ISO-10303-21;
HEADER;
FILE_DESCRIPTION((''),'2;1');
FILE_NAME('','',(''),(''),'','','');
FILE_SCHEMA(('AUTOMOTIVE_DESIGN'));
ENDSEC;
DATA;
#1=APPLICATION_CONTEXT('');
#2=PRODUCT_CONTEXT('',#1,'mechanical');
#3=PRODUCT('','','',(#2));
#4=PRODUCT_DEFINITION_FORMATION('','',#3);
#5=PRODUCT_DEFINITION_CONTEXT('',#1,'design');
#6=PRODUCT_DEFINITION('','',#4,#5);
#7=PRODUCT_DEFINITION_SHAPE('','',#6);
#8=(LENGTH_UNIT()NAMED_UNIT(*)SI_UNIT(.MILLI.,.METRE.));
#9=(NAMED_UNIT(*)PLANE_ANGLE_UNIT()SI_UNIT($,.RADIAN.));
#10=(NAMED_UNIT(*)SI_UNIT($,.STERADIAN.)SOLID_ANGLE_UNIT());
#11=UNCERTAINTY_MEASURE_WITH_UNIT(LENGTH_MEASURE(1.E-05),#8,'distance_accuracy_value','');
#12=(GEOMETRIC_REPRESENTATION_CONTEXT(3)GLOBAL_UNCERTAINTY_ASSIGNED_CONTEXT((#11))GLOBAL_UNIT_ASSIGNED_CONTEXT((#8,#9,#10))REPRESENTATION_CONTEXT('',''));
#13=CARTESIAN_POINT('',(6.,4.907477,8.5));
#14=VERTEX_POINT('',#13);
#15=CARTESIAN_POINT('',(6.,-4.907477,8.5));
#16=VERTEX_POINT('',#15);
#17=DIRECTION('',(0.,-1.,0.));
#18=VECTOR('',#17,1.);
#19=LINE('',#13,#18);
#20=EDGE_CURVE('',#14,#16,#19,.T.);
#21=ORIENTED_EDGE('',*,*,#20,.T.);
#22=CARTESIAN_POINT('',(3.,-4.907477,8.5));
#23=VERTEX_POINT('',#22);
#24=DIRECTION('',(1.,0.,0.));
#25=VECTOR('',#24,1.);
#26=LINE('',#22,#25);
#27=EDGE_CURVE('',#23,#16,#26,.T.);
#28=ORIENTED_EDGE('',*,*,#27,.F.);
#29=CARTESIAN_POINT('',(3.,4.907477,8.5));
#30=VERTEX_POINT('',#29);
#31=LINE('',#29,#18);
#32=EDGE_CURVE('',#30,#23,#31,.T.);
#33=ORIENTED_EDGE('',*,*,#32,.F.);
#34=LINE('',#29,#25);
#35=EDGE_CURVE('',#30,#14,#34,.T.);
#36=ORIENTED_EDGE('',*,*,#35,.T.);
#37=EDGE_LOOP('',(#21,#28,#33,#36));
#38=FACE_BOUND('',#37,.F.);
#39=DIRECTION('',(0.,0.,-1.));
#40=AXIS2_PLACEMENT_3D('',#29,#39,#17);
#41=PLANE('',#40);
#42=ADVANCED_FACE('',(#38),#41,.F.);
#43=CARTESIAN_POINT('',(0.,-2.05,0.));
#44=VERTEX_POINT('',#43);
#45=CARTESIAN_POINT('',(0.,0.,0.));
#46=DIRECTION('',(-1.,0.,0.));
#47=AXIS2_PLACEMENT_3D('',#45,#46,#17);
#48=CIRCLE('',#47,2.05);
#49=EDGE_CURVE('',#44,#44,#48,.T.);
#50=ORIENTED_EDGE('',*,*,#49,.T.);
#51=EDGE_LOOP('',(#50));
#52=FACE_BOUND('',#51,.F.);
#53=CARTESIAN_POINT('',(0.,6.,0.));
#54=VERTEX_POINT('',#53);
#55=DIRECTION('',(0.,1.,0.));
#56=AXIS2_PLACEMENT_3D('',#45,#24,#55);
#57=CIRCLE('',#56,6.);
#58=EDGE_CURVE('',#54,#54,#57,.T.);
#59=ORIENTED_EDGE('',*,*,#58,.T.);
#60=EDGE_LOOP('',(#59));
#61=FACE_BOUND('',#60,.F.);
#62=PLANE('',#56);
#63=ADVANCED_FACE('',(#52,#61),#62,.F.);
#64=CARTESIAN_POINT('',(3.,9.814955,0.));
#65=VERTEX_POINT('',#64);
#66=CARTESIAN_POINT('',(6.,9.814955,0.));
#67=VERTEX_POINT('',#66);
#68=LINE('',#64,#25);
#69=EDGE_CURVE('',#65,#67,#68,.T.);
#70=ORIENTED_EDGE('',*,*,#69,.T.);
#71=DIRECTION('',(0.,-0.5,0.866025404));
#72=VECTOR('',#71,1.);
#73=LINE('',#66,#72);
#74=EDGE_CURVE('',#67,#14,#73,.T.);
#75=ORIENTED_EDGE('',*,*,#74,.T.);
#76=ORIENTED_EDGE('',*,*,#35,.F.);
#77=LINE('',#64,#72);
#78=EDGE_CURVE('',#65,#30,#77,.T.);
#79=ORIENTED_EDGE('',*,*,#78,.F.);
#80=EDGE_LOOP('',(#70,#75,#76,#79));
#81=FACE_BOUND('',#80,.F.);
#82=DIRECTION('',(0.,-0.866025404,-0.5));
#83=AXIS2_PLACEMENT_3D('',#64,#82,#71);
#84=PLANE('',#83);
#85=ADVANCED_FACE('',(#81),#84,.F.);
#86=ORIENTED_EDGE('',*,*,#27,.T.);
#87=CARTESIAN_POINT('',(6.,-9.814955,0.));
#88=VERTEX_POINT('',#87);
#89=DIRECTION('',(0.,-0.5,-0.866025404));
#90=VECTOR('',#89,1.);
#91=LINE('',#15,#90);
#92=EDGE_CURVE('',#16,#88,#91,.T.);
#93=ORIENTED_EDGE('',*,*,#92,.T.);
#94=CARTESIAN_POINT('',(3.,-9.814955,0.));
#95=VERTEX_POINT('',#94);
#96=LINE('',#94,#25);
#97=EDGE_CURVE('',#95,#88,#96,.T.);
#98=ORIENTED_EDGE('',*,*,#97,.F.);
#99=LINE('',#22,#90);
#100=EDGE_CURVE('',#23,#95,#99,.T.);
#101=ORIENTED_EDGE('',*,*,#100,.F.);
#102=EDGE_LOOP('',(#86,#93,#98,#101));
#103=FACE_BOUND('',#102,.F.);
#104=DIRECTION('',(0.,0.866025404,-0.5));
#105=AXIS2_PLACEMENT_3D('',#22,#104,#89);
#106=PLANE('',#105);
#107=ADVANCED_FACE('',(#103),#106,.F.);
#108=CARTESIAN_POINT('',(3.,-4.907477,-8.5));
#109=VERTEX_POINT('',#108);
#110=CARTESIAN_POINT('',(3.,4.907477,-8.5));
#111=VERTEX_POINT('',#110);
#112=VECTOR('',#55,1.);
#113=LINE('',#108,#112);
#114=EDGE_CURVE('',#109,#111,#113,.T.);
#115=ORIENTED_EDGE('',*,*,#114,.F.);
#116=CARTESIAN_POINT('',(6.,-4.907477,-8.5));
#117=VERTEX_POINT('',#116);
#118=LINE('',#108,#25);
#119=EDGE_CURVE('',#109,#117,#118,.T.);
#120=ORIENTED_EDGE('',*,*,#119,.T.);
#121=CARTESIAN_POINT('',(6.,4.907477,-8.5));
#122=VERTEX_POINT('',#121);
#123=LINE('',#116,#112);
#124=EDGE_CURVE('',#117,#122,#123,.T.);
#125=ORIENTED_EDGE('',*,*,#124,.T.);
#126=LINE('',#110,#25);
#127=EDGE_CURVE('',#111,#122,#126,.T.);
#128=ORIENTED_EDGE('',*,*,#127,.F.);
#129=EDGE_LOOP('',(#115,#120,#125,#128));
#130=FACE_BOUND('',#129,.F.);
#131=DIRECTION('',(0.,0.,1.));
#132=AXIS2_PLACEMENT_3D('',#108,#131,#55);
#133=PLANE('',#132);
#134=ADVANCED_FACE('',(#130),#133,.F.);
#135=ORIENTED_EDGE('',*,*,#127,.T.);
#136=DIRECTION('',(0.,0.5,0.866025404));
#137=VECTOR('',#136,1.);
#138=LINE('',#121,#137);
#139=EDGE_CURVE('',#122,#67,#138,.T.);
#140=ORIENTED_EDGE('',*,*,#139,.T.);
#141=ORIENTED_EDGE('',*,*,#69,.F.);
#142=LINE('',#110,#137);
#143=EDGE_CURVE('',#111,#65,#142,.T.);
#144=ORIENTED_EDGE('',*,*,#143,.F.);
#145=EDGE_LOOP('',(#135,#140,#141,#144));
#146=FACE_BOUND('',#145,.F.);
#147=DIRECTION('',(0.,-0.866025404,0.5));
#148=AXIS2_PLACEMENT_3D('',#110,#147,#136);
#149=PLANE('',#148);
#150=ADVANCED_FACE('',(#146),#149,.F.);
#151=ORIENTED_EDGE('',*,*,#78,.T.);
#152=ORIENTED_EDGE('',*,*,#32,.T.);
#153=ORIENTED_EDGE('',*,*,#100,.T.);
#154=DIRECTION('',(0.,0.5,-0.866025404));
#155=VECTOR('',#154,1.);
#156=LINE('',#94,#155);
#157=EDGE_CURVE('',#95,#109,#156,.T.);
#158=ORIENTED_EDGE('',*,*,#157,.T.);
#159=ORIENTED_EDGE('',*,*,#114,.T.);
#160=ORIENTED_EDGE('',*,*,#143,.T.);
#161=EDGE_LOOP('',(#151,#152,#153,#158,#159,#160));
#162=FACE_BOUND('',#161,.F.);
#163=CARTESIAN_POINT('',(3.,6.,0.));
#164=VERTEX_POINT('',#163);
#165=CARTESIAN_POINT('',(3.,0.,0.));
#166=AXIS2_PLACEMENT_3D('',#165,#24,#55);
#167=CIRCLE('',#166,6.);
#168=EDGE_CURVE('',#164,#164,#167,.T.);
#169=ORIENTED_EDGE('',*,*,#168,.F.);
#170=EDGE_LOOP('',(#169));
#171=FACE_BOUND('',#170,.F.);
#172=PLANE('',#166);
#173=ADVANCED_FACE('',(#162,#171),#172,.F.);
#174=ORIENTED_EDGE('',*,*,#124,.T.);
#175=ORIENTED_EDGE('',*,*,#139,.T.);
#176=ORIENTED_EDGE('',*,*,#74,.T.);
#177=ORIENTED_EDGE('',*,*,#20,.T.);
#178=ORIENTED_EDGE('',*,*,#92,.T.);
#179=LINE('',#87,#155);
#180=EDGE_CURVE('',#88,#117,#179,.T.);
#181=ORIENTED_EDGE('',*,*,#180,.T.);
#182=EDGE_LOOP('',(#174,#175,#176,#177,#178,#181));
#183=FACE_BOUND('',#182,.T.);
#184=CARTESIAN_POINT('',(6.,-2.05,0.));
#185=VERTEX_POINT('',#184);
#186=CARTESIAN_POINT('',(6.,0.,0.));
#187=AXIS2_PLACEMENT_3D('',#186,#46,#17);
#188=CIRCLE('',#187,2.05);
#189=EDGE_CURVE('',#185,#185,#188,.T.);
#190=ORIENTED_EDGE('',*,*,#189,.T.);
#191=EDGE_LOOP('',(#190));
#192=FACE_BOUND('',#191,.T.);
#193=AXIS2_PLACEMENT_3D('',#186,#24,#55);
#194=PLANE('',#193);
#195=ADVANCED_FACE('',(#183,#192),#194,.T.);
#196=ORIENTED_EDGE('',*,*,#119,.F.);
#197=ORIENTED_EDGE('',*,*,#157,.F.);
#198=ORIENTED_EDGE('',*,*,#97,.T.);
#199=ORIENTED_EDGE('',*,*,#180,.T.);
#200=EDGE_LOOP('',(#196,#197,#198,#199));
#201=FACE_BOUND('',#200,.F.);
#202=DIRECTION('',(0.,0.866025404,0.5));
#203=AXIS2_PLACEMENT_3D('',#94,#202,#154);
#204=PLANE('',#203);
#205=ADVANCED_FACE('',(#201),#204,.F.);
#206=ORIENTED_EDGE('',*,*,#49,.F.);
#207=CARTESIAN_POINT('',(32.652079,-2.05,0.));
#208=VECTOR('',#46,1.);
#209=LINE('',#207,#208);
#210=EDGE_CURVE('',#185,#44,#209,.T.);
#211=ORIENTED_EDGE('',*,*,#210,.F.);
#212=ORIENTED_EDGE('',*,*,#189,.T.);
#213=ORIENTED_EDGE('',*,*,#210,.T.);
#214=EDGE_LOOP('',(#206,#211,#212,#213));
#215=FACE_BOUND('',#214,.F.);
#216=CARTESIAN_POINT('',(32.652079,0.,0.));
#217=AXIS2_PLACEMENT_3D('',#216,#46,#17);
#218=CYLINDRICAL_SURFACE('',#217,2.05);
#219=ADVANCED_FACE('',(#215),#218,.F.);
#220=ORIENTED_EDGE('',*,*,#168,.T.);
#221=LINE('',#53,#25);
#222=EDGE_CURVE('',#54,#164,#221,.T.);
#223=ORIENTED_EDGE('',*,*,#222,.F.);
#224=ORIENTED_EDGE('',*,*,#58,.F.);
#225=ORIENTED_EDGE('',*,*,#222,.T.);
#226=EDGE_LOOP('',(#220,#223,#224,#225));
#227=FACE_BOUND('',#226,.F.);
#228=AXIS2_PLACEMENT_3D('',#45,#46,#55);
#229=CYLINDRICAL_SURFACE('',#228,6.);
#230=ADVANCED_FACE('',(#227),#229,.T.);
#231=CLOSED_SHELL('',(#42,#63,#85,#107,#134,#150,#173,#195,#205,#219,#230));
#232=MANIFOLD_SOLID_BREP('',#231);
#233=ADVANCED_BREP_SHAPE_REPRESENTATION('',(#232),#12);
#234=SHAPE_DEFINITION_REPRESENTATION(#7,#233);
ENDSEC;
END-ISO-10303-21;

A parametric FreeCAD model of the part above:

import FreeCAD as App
import Part
import Sketcher
Q = App.Units.Quantity

doc = App.newDocument("Part")
body = doc.addObject("PartDesign::Body", "Body")

sketch1 = body.newObject("Sketcher::SketchObject", "Sketch")
sketch1.AttachmentSupport = (doc.getObject("YZ_Plane"), [""])
sketch1.MapMode = "FlatFace"
sketch1.addGeometry(Part.Circle(App.Vector(0, 0, 0), App.Vector(0, 0, 1), 6), False)
sketch1.addConstraint([
    Sketcher.Constraint("Coincident", 0, 3, -1, 1),
    Sketcher.Constraint("Diameter", 0, Q("12 mm")),
])
pad1 = body.newObject("PartDesign::Pad", "Pad")
pad1.Profile = sketch1
pad1.Length = 3

sketch2 = body.newObject("Sketcher::SketchObject", "Sketch001")
sketch2.AttachmentSupport = (doc.getObject("YZ_Plane"), [""])
sketch2.MapMode = "FlatFace"
sketch2.AttachmentOffset = App.Placement(App.Vector(0, 0, 3), App.Rotation())
sketch2.addGeometry([
    Part.LineSegment(App.Vector(4.907477, 8.5, 0), App.Vector(-4.907477, 8.5, 0)),
    Part.LineSegment(App.Vector(-4.907477, 8.5, 0), App.Vector(-9.814955, 0, 0)),
    Part.LineSegment(App.Vector(-9.814955, 0, 0), App.Vector(-4.907477, -8.5, 0)),
    Part.LineSegment(App.Vector(-4.907477, -8.5, 0), App.Vector(4.907477, -8.5, 0)),
    Part.LineSegment(App.Vector(4.907477, -8.5, 0), App.Vector(9.814955, 0, 0)),
    Part.LineSegment(App.Vector(9.814955, 0, 0), App.Vector(4.907477, 8.5, 0)),
], False)
sketch2.addConstraint([
    Sketcher.Constraint("Coincident", 0, 2, 1, 1),
    Sketcher.Constraint("Coincident", 1, 2, 2, 1),
    Sketcher.Constraint("Coincident", 2, 2, 3, 1),
    Sketcher.Constraint("Coincident", 3, 2, 4, 1),
    Sketcher.Constraint("Coincident", 4, 2, 5, 1),
    Sketcher.Constraint("Coincident", 5, 2, 0, 1),
    Sketcher.Constraint("Horizontal", 0),
    Sketcher.Constraint("Horizontal", 3),
    Sketcher.Constraint("Symmetric", 0, 2, 3, 2, -1, 1),
    Sketcher.Constraint("Symmetric", 1, 2, 4, 2, -1, 1),
    Sketcher.Constraint("PointOnObject", 1, 2, -1),
    Sketcher.Constraint("Parallel", 2, 5),
    Sketcher.Constraint("Vertical", 0, 2, 2, 2),
    Sketcher.Constraint("Angle", 1, Q("-120 deg")),
    Sketcher.Constraint("DistanceY", 2, 2, 0, 2, Q("17 mm")),
    Sketcher.Constraint("DistanceX", 0, 2, 0, 1, Q("9.814955 mm")),
])
pad2 = body.newObject("PartDesign::Pad", "Pad001")
pad2.Profile = sketch2
pad2.Length = 3

sketch3 = body.newObject("Sketcher::SketchObject", "Sketch002")
sketch3.AttachmentSupport = (doc.getObject("YZ_Plane"), [""])
sketch3.MapMode = "FlatFace"
sketch3.AttachmentOffset = App.Placement(App.Vector(0, 0, 6), App.Rotation())
sketch3.addGeometry(Part.Circle(App.Vector(0, 0, 0), App.Vector(0, 0, 1), 2.05), False)
sketch3.addConstraint([
    Sketcher.Constraint("Coincident", 0, 3, -1, 1),
    Sketcher.Constraint("Diameter", 0, Q("4.1 mm")),
])
doc.recompute()
hole = body.newObject("PartDesign::Hole", "Hole")
hole.Profile = sketch3
hole.ThreadType = "None"
hole.Diameter = 4.1
hole.DepthType = "ThroughAll"

doc.recompute()
